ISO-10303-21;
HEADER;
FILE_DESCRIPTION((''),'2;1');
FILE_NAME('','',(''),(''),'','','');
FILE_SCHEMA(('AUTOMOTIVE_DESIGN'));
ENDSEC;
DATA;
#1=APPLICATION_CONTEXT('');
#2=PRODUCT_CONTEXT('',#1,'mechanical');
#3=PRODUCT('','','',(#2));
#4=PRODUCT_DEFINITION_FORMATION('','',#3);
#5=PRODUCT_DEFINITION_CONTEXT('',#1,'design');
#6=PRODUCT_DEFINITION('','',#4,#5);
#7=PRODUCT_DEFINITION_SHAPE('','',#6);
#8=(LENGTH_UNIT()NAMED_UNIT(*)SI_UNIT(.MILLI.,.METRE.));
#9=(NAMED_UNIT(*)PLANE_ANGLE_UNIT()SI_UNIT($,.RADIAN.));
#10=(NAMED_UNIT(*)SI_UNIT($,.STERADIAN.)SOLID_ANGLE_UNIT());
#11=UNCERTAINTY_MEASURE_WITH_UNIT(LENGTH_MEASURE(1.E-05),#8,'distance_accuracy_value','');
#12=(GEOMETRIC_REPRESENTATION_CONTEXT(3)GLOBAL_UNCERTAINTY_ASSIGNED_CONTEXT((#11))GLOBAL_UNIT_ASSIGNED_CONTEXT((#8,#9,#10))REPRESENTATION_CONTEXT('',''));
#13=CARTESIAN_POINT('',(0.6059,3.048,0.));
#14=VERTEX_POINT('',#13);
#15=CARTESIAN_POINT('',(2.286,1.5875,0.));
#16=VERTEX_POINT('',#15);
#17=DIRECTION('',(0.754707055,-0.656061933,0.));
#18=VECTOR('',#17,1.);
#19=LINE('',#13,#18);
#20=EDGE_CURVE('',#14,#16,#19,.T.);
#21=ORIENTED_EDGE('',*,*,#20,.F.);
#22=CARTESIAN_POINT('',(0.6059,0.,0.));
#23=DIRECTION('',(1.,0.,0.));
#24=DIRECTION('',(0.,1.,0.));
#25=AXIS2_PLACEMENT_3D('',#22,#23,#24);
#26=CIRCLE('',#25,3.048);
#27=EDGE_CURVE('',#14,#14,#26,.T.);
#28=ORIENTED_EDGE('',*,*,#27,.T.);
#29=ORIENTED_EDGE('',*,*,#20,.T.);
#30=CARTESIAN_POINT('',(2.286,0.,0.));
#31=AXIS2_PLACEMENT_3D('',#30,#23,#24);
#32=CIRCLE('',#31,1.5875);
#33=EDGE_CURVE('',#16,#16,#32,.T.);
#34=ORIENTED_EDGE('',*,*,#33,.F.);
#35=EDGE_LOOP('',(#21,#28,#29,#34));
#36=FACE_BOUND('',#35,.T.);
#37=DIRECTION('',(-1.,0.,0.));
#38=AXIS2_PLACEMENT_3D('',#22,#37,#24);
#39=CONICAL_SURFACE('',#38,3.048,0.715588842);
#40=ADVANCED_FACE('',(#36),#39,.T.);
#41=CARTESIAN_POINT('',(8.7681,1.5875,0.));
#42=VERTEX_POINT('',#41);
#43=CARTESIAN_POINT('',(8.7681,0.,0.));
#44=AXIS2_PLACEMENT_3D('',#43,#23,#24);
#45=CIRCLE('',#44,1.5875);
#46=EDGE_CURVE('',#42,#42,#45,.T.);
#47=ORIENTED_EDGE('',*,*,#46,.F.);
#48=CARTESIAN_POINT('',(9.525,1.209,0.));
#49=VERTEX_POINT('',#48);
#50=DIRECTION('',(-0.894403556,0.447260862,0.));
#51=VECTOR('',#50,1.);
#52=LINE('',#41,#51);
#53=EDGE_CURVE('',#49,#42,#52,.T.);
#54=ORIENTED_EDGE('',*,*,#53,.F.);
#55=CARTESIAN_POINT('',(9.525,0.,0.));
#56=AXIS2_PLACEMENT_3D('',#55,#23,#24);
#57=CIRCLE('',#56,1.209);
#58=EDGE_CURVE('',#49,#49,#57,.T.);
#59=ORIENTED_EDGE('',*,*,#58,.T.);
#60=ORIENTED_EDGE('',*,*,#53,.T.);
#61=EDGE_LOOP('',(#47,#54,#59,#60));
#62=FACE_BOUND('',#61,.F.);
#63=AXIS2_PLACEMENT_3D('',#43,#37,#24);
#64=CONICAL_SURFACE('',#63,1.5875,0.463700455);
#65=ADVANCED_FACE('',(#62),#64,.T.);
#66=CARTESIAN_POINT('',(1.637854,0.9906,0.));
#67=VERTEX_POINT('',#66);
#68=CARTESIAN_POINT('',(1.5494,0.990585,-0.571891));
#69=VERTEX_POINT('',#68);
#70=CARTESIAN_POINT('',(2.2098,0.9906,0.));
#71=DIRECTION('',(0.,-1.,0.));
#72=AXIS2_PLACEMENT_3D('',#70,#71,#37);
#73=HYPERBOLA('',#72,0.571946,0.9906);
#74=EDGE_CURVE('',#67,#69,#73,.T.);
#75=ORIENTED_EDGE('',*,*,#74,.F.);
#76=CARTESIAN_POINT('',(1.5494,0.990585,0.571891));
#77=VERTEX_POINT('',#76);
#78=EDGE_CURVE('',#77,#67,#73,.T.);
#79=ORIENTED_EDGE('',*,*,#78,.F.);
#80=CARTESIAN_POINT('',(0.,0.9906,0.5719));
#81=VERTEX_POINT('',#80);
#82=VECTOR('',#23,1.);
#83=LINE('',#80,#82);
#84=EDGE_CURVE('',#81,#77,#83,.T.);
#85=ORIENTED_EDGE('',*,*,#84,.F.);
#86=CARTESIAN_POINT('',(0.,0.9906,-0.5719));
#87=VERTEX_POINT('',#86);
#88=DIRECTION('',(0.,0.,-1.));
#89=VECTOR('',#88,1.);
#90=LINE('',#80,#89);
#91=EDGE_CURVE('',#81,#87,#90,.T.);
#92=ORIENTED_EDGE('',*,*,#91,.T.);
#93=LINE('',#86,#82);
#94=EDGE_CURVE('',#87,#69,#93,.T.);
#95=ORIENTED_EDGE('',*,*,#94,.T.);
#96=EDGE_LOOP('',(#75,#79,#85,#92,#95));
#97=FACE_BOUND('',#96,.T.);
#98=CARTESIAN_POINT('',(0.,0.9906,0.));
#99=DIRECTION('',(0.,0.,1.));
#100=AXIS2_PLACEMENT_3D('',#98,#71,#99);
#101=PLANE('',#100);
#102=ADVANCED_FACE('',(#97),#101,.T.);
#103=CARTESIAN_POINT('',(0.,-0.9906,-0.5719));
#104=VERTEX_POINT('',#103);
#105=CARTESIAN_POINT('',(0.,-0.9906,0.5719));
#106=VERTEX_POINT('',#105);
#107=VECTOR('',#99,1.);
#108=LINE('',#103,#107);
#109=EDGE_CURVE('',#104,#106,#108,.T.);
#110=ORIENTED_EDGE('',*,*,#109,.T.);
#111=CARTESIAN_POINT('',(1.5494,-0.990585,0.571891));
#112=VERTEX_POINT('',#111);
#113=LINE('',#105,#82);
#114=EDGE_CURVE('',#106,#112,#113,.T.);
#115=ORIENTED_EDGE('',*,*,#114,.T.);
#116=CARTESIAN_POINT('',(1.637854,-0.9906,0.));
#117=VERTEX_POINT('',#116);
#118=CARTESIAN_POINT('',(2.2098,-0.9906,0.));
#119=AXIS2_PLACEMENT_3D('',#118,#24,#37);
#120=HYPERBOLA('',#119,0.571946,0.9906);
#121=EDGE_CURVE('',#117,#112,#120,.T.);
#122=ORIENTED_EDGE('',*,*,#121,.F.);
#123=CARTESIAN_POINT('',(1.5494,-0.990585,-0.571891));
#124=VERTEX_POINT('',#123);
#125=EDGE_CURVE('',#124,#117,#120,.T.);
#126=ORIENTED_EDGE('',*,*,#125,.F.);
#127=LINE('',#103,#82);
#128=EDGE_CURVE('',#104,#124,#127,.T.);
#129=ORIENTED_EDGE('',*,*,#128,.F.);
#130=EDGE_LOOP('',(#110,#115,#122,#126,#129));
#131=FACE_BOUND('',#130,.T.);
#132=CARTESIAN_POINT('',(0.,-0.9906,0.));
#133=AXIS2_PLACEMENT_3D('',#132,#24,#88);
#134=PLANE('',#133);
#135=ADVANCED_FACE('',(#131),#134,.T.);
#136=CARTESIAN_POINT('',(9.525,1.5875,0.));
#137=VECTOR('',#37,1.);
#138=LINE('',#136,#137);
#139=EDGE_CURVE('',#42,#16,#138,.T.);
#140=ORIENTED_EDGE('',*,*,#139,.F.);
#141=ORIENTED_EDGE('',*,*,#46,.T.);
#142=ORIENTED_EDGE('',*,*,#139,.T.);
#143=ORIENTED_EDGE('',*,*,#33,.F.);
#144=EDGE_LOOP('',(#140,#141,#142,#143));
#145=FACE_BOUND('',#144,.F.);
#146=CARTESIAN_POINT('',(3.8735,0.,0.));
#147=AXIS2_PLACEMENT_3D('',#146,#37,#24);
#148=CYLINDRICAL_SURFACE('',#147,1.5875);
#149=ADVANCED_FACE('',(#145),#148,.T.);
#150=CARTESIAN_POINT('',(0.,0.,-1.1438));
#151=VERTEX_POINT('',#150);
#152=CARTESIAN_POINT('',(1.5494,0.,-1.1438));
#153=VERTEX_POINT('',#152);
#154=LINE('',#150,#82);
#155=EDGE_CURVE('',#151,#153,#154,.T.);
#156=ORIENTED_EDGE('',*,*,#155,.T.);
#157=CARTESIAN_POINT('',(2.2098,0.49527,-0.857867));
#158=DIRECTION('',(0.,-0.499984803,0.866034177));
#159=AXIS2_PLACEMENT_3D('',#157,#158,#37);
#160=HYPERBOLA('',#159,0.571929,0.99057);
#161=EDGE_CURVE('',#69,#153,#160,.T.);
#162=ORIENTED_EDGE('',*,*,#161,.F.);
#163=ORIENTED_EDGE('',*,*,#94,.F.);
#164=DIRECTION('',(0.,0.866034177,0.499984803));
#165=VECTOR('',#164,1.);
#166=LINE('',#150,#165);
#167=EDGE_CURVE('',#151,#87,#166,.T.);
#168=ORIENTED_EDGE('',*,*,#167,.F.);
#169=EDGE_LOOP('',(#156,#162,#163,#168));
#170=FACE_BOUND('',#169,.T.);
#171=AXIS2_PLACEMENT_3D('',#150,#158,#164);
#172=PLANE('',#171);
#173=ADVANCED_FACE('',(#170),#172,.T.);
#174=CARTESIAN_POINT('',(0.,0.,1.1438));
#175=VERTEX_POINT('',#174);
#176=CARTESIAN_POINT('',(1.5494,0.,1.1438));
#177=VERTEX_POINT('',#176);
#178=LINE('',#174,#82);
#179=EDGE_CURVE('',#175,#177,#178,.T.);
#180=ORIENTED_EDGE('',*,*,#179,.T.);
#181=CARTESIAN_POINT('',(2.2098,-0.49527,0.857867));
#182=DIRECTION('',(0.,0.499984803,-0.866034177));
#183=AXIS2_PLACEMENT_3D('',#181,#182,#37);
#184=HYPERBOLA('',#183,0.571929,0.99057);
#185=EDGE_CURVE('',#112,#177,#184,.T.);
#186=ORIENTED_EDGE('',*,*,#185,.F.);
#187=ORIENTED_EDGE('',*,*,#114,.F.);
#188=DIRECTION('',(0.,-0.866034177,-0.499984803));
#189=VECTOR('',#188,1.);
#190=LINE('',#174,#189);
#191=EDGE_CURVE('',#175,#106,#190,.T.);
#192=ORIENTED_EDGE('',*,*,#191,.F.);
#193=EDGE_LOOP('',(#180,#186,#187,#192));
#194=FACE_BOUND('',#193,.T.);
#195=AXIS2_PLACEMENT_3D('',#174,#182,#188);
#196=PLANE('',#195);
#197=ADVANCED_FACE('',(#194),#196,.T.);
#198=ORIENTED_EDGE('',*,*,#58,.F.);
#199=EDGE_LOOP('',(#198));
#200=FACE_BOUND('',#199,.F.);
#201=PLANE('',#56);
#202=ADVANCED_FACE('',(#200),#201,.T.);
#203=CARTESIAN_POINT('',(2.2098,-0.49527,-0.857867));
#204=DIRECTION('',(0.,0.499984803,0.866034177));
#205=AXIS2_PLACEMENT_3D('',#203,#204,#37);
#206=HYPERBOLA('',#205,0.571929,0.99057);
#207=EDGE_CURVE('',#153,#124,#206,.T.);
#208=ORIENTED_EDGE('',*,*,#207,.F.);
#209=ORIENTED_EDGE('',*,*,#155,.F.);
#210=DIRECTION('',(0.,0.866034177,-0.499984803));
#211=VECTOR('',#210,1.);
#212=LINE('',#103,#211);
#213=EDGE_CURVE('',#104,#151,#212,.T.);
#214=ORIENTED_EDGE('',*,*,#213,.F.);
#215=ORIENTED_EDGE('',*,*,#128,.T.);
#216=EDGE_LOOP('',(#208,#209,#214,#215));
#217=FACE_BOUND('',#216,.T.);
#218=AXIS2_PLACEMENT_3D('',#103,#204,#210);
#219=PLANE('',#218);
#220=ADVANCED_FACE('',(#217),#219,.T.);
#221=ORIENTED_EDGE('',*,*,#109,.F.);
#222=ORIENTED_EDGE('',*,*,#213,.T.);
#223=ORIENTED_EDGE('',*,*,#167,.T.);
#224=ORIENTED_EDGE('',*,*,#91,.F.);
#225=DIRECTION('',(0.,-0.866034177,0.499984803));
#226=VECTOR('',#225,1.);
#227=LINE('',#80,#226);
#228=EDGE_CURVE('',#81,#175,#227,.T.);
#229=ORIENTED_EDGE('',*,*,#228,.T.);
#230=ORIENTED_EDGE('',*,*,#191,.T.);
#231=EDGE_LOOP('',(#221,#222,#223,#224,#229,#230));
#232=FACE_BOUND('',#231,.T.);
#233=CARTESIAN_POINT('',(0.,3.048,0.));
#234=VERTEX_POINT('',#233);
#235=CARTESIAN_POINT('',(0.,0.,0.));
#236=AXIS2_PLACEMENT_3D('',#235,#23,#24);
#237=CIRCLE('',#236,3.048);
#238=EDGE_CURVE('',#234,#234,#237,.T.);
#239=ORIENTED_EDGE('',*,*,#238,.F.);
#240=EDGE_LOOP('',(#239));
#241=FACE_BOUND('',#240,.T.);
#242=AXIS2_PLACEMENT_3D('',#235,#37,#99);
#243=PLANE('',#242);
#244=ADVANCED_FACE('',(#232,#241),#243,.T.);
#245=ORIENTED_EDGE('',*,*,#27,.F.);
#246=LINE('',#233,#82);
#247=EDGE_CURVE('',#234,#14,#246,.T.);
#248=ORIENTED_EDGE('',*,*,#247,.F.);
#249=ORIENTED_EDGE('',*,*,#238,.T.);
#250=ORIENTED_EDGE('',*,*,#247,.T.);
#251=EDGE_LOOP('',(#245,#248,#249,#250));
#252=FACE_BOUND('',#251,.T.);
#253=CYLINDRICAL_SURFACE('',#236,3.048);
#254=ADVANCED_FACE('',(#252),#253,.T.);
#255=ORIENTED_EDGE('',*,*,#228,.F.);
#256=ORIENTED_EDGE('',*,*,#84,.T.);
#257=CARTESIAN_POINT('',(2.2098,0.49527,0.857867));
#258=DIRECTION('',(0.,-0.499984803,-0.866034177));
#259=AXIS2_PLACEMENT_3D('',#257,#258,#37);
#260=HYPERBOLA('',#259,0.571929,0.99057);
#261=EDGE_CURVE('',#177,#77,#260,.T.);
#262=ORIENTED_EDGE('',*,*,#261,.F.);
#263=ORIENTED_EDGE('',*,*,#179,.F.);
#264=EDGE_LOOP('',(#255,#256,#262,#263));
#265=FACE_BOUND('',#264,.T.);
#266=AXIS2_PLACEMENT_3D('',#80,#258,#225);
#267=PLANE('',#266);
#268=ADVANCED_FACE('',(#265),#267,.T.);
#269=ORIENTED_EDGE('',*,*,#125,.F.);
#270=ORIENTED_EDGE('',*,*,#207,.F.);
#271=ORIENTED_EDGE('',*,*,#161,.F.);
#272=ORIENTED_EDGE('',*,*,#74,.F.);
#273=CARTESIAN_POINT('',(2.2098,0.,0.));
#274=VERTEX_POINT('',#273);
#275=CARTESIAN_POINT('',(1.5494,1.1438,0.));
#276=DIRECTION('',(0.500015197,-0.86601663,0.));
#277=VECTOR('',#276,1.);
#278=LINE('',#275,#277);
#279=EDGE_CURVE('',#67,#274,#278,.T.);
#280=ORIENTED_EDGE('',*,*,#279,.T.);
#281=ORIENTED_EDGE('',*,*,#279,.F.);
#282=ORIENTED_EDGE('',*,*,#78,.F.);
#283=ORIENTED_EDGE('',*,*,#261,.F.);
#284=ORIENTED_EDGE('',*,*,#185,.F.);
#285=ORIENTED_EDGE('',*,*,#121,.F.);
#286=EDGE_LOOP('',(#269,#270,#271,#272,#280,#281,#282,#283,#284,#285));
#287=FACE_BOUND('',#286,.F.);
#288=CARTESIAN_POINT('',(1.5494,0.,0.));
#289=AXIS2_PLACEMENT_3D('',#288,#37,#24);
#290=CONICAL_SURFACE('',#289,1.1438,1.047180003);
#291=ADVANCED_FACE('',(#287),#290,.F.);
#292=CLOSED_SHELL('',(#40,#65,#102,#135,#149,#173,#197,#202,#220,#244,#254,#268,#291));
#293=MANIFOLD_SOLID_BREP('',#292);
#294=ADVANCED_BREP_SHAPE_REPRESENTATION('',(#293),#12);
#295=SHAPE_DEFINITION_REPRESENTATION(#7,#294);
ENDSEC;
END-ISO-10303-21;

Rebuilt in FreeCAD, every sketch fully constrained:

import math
import FreeCAD as App
import Part
import Sketcher
from FreeCAD import Vector
Q = App.Units.Quantity


def edges_at(feature, points):
    """Names of the edges that pass closest to the given points."""
    edges = feature.Shape.Edges
    near = lambda p: min(range(len(edges)), key=lambda i: edges[i].distToShape(Part.Vertex(*p))[0])
    return sorted({f"Edge{near(p) + 1}" for p in points})


def add_polygon(sketch, points):
    """Adds a closed chain of lines whose ends are joined by coincident constraints."""
    first, n = sketch.GeometryCount, len(points)
    for a, b in zip(points, points[1:] + points[:1]):
        sketch.addGeometry(Part.LineSegment(App.Vector(*a, 0), App.Vector(*b, 0)), False)
    for i in range(n):
        sketch.addConstraint(Sketcher.Constraint("Coincident", first + i, 2, first + (i + 1) % n, 1))

doc = App.newDocument("Part")
params = doc.addObject("Spreadsheet::Sheet", "Params")
for row, (alias, value) in enumerate([
    ("sketch1_width", "0.061 in"),
    ("sketch1_height", "0.0625 in"),
    ("sketch1_width2", "0.288 in"),
    ("revolution_angle", "360 deg"),
    ("chamfer_size", "0.0149016 in"),
    ("chamfer_size2", "0.0297992 in"),
], start=1):
    params.set(f"A{row}", alias)
    params.set(f"B{row}", "=" + value)
    params.setAlias(f"B{row}", alias)

body = doc.addObject("PartDesign::Body", "Body")

# Sketch on XY plane
sketch1 = body.newObject("Sketcher::SketchObject", "Sketch")
sketch1.AttachmentSupport = (doc.getObject("XY_Plane"), [""])
sketch1.MapMode = "FlatFace"
add_polygon(sketch1, [(2.2, 0), (9.5, 0), (9.5, 1.6), (2.3, 1.6), (0.6, 3), (0, 3), (0, 1.1), (1.5, 1.1)])  # lines 0-7
sketch1.addConstraint(Sketcher.Constraint("Horizontal", 0))
sketch1.addConstraint(Sketcher.Constraint("Vertical", 1))
sketch1.addConstraint(Sketcher.Constraint("Horizontal", 2))
sketch1.addConstraint(Sketcher.Constraint("Horizontal", 4))
sketch1.addConstraint(Sketcher.Constraint("Vertical", 5))
sketch1.addConstraint(Sketcher.Constraint("Horizontal", 6))
sketch1.addConstraint(Sketcher.Constraint("PointOnObject", 0, 2, -1))
sketch1.addConstraint(Sketcher.Constraint("PointOnObject", 4, 2, -2))
sketch1.addConstraint(Sketcher.Constraint("DistanceX", 6, 1, 6, 2, Q("0.061 in")))
sketch1.addConstraint(Sketcher.Constraint("DistanceY", 1, 1, 1, 2, Q("0.0625 in")))
sketch1.addConstraint(Sketcher.Constraint("DistanceX", -1, 1, 2, 2, Q("0.09 in")))
sketch1.addConstraint(Sketcher.Constraint("DistanceX", -1, 1, 0, 2, Q("0.375 in")))
sketch1.addConstraint(Sketcher.Constraint("Angle", 3, Q("138.9998 deg")))
sketch1.addConstraint(Sketcher.Constraint("Angle", 7, Q("-59.999 deg")))
sketch1.addConstraint(Sketcher.Constraint("DistanceX", 0, 1, 0, 2, Q("0.288 in")))
sketch1.addConstraint(Sketcher.Constraint("DistanceY", -1, 1, 3, 2, Q("0.12 in")))
sketch1.setExpression("Constraints[16]", "Params.sketch1_width")
sketch1.setExpression("Constraints[17]", "Params.sketch1_height")
sketch1.setExpression("Constraints[22]", "Params.sketch1_width2")
revolution = body.newObject("PartDesign::Revolution", "Revolution")
revolution.Profile = sketch1
revolution.ReferenceAxis = (sketch1, ["H_Axis"])
revolution.setExpression("Angle", "Params.revolution_angle")

# Sketch on YZ plane
sketch2 = body.newObject("Sketcher::SketchObject", "Sketch001")
sketch2.AttachmentSupport = (doc.getObject("YZ_Plane"), [""])
sketch2.MapMode = "FlatFace"
sketch2.addGeometry(Part.LineSegment(Vector(1, 0.6, 0), Vector(0, 1.1, 0)), False)
sketch2.addGeometry(Part.ArcOfCircle(Part.Circle(Vector(0, 0, 0), Vector(0, 0, 1), 1.1), math.radians(30), math.radians(90)), False)
sketch2.addGeometry(Part.ArcOfCircle(Part.Circle(Vector(0, 0, 0), Vector(0, 0, 1), 1.1), math.radians(90), math.radians(150)), False)
sketch2.addGeometry(Part.LineSegment(Vector(0, 1.1, 0), Vector(-1, 0.6, 0)), False)
sketch2.addGeometry(Part.ArcOfCircle(Part.Circle(Vector(0, 0, 0), Vector(0, 0, 1), 1.1), math.radians(-30), math.radians(30)), False)
sketch2.addGeometry(Part.LineSegment(Vector(1, 0.6, 0), Vector(1, -0.6, 0)), False)
sketch2.addGeometry(Part.LineSegment(Vector(-1, 0.6, 0), Vector(-1, -0.6, 0)), False)
sketch2.addGeometry(Part.ArcOfCircle(Part.Circle(Vector(0, 0, 0), Vector(0, 0, 1), 1.1), math.radians(150), math.radians(210)), False)
sketch2.addGeometry(Part.LineSegment(Vector(-1, -0.6, 0), Vector(0, -1.1, 0)), False)
sketch2.addGeometry(Part.ArcOfCircle(Part.Circle(Vector(0, 0, 0), Vector(0, 0, 1), 1.1), math.radians(-150), math.radians(-90)), False)
sketch2.addGeometry(Part.ArcOfCircle(Part.Circle(Vector(0, 0, 0), Vector(0, 0, 1), 1.1), math.radians(-90), math.radians(-30)), False)
sketch2.addGeometry(Part.LineSegment(Vector(0, -1.1, 0), Vector(1, -0.6, 0)), False)
sketch2.addConstraint(Sketcher.Constraint("Coincident", 0, 1, 1, 1))
sketch2.addConstraint(Sketcher.Constraint("Coincident", 1, 2, 0, 2))
sketch2.addConstraint(Sketcher.Constraint("Coincident", 2, 1, 3, 1))
sketch2.addConstraint(Sketcher.Constraint("Coincident", 3, 2, 2, 2))
sketch2.addConstraint(Sketcher.Constraint("Coincident", 4, 1, 5, 2))
sketch2.addConstraint(Sketcher.Constraint("Coincident", 5, 1, 4, 2))
sketch2.addConstraint(Sketcher.Constraint("Coincident", 6, 1, 7, 1))
sketch2.addConstraint(Sketcher.Constraint("Coincident", 7, 2, 6, 2))
sketch2.addConstraint(Sketcher.Constraint("Coincident", 8, 1, 9, 1))
sketch2.addConstraint(Sketcher.Constraint("Coincident", 9, 2, 8, 2))
sketch2.addConstraint(Sketcher.Constraint("Coincident", 10, 1, 11, 1))
sketch2.addConstraint(Sketcher.Constraint("Coincident", 11, 2, 10, 2))
sketch2.addConstraint(Sketcher.Constraint("Vertical", 5))
sketch2.addConstraint(Sketcher.Constraint("Vertical", 6))
sketch2.addConstraint(Sketcher.Constraint("Coincident", 1, 3, -1, 1))
sketch2.addConstraint(Sketcher.Constraint("Coincident", 2, 3, -1, 1))
sketch2.addConstraint(Sketcher.Constraint("Coincident", 4, 3, -1, 1))
sketch2.addConstraint(Sketcher.Constraint("Coincident", 7, 3, -1, 1))
sketch2.addConstraint(Sketcher.Constraint("Coincident", 9, 3, -1, 1))
sketch2.addConstraint(Sketcher.Constraint("Coincident", 10, 3, -1, 1))
sketch2.addConstraint(Sketcher.Constraint("Coincident", 2, 1, 1, 2))
sketch2.addConstraint(Sketcher.Constraint("Coincident", 5, 1, 0, 1))
sketch2.addConstraint(Sketcher.Constraint("Coincident", 6, 1, 3, 2))
sketch2.addConstraint(Sketcher.Constraint("Coincident", 8, 1, 7, 2))
sketch2.addConstraint(Sketcher.Constraint("Coincident", 10, 1, 9, 2))
sketch2.addConstraint(Sketcher.Constraint("PointOnObject", 1, 2, -2))
sketch2.addConstraint(Sketcher.Constraint("PointOnObject", 9, 2, -2))
sketch2.addConstraint(Sketcher.Constraint("Parallel", 0, 8))
sketch2.addConstraint(Sketcher.Constraint("Parallel", 3, 11))
sketch2.addConstraint(Sketcher.Constraint("Angle", 0, Q("150.001 deg")))
sketch2.addConstraint(Sketcher.Constraint("Radius", 1, Q("1.1438 mm")))
pad1 = body.newObject("PartDesign::Pad", "Pad")
pad1.Profile = sketch2
pad1.Type = "UpToFirst"
doc.recompute()

chamfer = body.newObject("PartDesign::Chamfer", "Chamfer")
chamfer.Base = (pad1, edges_at(pad1, [(9.525, -1.587, 0)]))
chamfer.ChamferType = "Two distances"
chamfer.setExpression("Size", "Params.chamfer_size")
chamfer.setExpression("Size2", "Params.chamfer_size2")

doc.recompute()
